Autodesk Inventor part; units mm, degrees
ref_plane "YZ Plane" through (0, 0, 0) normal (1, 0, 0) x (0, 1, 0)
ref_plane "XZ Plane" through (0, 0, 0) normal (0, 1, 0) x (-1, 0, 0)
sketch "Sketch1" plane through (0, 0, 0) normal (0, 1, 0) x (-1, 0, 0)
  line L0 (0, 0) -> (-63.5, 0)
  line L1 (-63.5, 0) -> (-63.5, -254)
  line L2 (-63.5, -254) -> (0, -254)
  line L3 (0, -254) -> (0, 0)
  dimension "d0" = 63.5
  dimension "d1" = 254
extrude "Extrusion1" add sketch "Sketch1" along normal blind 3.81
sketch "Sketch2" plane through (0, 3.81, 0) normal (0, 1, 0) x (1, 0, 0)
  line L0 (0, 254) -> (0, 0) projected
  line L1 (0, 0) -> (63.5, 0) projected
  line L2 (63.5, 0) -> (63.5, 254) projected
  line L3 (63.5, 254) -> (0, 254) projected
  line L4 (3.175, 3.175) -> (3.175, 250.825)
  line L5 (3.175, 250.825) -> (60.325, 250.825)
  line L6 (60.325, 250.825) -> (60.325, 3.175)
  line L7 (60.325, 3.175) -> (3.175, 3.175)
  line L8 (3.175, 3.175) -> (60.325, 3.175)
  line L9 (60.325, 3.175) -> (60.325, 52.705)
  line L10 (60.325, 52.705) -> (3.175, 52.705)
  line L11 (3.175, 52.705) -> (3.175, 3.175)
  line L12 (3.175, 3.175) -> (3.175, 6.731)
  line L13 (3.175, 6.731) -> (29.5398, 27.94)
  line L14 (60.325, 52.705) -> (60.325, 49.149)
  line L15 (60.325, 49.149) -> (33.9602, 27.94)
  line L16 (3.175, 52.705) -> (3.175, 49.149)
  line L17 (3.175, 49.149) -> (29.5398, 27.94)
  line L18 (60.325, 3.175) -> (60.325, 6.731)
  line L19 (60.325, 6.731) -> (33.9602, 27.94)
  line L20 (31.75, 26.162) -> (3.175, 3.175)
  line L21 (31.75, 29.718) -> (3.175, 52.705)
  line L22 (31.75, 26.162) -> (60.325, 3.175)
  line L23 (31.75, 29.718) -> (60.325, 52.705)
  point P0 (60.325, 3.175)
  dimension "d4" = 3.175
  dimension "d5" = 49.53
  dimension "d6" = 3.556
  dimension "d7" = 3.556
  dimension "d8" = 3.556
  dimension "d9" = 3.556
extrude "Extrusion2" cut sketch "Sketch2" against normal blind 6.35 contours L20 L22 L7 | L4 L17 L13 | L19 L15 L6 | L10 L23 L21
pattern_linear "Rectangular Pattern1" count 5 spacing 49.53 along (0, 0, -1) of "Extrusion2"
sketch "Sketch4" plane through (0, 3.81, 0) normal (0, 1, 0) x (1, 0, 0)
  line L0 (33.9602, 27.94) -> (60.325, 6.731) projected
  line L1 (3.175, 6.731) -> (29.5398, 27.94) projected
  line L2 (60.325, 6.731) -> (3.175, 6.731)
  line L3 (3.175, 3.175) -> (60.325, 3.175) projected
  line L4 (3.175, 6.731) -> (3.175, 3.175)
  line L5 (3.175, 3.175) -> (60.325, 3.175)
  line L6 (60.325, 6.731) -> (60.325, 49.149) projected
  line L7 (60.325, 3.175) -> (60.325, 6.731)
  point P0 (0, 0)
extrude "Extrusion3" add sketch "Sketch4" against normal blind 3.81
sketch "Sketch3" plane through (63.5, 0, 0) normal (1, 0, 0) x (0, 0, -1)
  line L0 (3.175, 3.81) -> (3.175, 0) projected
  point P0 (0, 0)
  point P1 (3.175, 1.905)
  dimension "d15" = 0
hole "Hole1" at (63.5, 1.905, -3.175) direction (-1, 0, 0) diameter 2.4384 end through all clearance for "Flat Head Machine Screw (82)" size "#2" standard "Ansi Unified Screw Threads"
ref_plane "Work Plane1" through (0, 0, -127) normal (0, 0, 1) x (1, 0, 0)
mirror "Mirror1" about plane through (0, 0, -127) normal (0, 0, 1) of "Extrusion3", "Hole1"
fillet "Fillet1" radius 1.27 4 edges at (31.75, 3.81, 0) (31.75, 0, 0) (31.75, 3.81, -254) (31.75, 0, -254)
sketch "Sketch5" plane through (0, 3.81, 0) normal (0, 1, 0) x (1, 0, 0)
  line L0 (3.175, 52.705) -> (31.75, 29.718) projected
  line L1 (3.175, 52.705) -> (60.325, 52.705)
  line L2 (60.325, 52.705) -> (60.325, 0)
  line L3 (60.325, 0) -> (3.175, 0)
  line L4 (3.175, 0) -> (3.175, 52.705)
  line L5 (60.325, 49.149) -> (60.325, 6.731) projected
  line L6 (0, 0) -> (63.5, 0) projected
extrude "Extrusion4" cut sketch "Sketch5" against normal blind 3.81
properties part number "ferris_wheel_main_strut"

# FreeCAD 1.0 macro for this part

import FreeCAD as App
import Part
import Sketcher
from FreeCAD import Vector
Q = App.Units.Quantity


def edges_at(feature, points):
    """Names of the edges that pass closest to the given points."""
    edges = feature.Shape.Edges
    near = lambda p: min(range(len(edges)), key=lambda i: edges[i].distToShape(Part.Vertex(*p))[0])
    return sorted({f"Edge{near(p) + 1}" for p in points})

doc = App.newDocument("Part")
params = doc.addObject("Spreadsheet::Sheet", "Params")
for row, (alias, value) in enumerate([
    ("sketch1_height", "10 in"),
    ("sketch1_width", "2.5 in"),
    ("pad1_length", "0.15 in"),
    ("sketch2_width", "2.25 in"),
    ("sketch2_height", "1.67 in"),
    ("pocket1_length", "0.25 in"),
    ("linearpattern_pitch", "1.95 in"),
    ("sketch3_width", "2.25 in"),
    ("sketch3_height", "0.14 in"),
    ("pad2_length", "0.15 in"),
    ("sketch4_diameter", "0.096 in"),
    ("hole_diameter", "0.096 in"),
    ("fillet_radius", "0.05 in"),
    ("sketch5_width", "2.25 in"),
    ("sketch5_height", "2.075 in"),
    ("pocket2_length", "0.15 in"),
], start=1):
    params.set(f"A{row}", alias)
    params.set(f"B{row}", "=" + value)
    params.setAlias(f"B{row}", alias)

body = doc.addObject("PartDesign::Body", "Body")

# Sketch on XZ plane
sketch1 = body.newObject("Sketcher::SketchObject", "Sketch")
sketch1.AttachmentSupport = (doc.getObject("XZ_Plane"), [""])
sketch1.MapMode = "FlatFace"
sketch1.addGeometry(Part.LineSegment(Vector(0, -254, 0), Vector(0, 0, 0)), False)
sketch1.addGeometry(Part.LineSegment(Vector(0, 0, 0), Vector(64, 0, 0)), False)
sketch1.addGeometry(Part.LineSegment(Vector(64, 0, 0), Vector(64, -254, 0)), False)
sketch1.addGeometry(Part.LineSegment(Vector(64, -254, 0), Vector(0, -254, 0)), False)
sketch1.addConstraint(Sketcher.Constraint("Coincident", 0, 2, 1, 1))
sketch1.addConstraint(Sketcher.Constraint("Coincident", 1, 2, 2, 1))
sketch1.addConstraint(Sketcher.Constraint("Coincident", 2, 2, 3, 1))
sketch1.addConstraint(Sketcher.Constraint("Coincident", 3, 2, 0, 1))
sketch1.addConstraint(Sketcher.Constraint("Vertical", 0))
sketch1.addConstraint(Sketcher.Constraint("Horizontal", 1))
sketch1.addConstraint(Sketcher.Constraint("Vertical", 2))
sketch1.addConstraint(Sketcher.Constraint("Horizontal", 3))
sketch1.addConstraint(Sketcher.Constraint("Coincident", 0, 2, -1, 1))
sketch1.addConstraint(Sketcher.Constraint("DistanceY", 0, 1, 0, 2, Q("10 in")))
sketch1.addConstraint(Sketcher.Constraint("DistanceX", 1, 1, 1, 2, Q("2.5 in")))
sketch1.setExpression("Constraints[9]", "Params.sketch1_height")
sketch1.setExpression("Constraints[10]", "Params.sketch1_width")
pad1 = body.newObject("PartDesign::Pad", "Pad")
pad1.Profile = sketch1
pad1.setExpression("Length", "Params.pad1_length")
pad1.Reversed = True

# Sketch on XZ plane
sketch2 = body.newObject("Sketcher::SketchObject", "Sketch001")
sketch2.AttachmentSupport = (doc.getObject("XZ_Plane"), [""])
sketch2.MapMode = "FlatFace"
sketch2.AttachmentOffset = App.Placement(Vector(0, 0, -0.15 * 25.4), App.Rotation())
sketch2.addGeometry(Part.LineSegment(Vector(32, -26, 0), Vector(3, -3, 0)), False)
sketch2.addGeometry(Part.LineSegment(Vector(3, -3, 0), Vector(60, -3, 0)), False)
sketch2.addGeometry(Part.LineSegment(Vector(60, -3, 0), Vector(32, -26, 0)), False)
sketch2.addGeometry(Part.LineSegment(Vector(3, -49, 0), Vector(3, -7, 0)), False)
sketch2.addGeometry(Part.LineSegment(Vector(3, -7, 0), Vector(30, -28, 0)), False)
sketch2.addGeometry(Part.LineSegment(Vector(30, -28, 0), Vector(3, -49, 0)), False)
sketch2.addGeometry(Part.LineSegment(Vector(34, -28, 0), Vector(60, -7, 0)), False)
sketch2.addGeometry(Part.LineSegment(Vector(60, -7, 0), Vector(60, -49, 0)), False)
sketch2.addGeometry(Part.LineSegment(Vector(60, -49, 0), Vector(34, -28, 0)), False)
sketch2.addGeometry(Part.LineSegment(Vector(60, -53, 0), Vector(3, -53, 0)), False)
sketch2.addGeometry(Part.LineSegment(Vector(3, -53, 0), Vector(32, -30, 0)), False)
sketch2.addGeometry(Part.LineSegment(Vector(32, -30, 0), Vector(60, -53, 0)), False)
sketch2.addConstraint(Sketcher.Constraint("Coincident", 0, 2, 1, 1))
sketch2.addConstraint(Sketcher.Constraint("Coincident", 1, 2, 2, 1))
sketch2.addConstraint(Sketcher.Constraint("Coincident", 2, 2, 0, 1))
sketch2.addConstraint(Sketcher.Constraint("Coincident", 3, 2, 4, 1))
sketch2.addConstraint(Sketcher.Constraint("Coincident", 4, 2, 5, 1))
sketch2.addConstraint(Sketcher.Constraint("Coincident", 5, 2, 3, 1))
sketch2.addConstraint(Sketcher.Constraint("Coincident", 6, 2, 7, 1))
sketch2.addConstraint(Sketcher.Constraint("Coincident", 7, 2, 8, 1))
sketch2.addConstraint(Sketcher.Constraint("Coincident", 8, 2, 6, 1))
sketch2.addConstraint(Sketcher.Constraint("Coincident", 9, 2, 10, 1))
sketch2.addConstraint(Sketcher.Constraint("Coincident", 10, 2, 11, 1))
sketch2.addConstraint(Sketcher.Constraint("Coincident", 11, 2, 9, 1))
sketch2.addConstraint(Sketcher.Constraint("Horizontal", 1))
sketch2.addConstraint(Sketcher.Constraint("Vertical", 3))
sketch2.addConstraint(Sketcher.Constraint("Vertical", 7))
sketch2.addConstraint(Sketcher.Constraint("Horizontal", 9))
sketch2.addConstraint(Sketcher.Constraint("Parallel", 0, 4))
sketch2.addConstraint(Sketcher.Constraint("Parallel", 2, 5))
sketch2.addConstraint(Sketcher.Constraint("Parallel", 5, 6))
sketch2.addConstraint(Sketcher.Constraint("Parallel", 4, 8))
sketch2.addConstraint(Sketcher.Constraint("Parallel", 6, 10))
sketch2.addConstraint(Sketcher.Constraint("Parallel", 8, 11))
sketch2.addConstraint(Sketcher.Constraint("Horizontal", 3, 2, 6, 2))
sketch2.addConstraint(Sketcher.Constraint("Horizontal", 5, 2, 7, 2))
sketch2.addConstraint(Sketcher.Constraint("Horizontal", 4, 2, 8, 2))
sketch2.addConstraint(Sketcher.Constraint("Vertical", 0, 2, 3, 2))
sketch2.addConstraint(Sketcher.Constraint("Vertical", 1, 2, 6, 2))
sketch2.addConstraint(Sketcher.Constraint("Vertical", 5, 2, 9, 2))
sketch2.addConstraint(Sketcher.Constraint("Vertical", 2, 2, 10, 2))
sketch2.addConstraint(Sketcher.Constraint("DistanceY", 3, 2, 0, 2, Q("0.14 in")))
sketch2.addConstraint(Sketcher.Constraint("DistanceY", 9, 2, 5, 2, Q("0.14 in")))
sketch2.addConstraint(Sketcher.Constraint("DistanceY", 10, 2, 2, 2, Q("0.14 in")))
sketch2.addConstraint(Sketcher.Constraint("DistanceX", -1, 1, 0, 2, Q("0.125 in")))
sketch2.addConstraint(Sketcher.Constraint("DistanceY", 0, 2, -1, 1, Q("0.125 in")))
sketch2.addConstraint(Sketcher.Constraint("DistanceX", 1, 1, 1, 2, Q("2.25 in")))
sketch2.addConstraint(Sketcher.Constraint("DistanceY", 3, 1, 3, 2, Q("1.67 in")))
sketch2.setExpression("Constraints[34]", "Params.sketch2_width")
sketch2.setExpression("Constraints[35]", "Params.sketch2_height")
pocket1 = body.newObject("PartDesign::Pocket", "Pocket")
pocket1.Profile = sketch2
pocket1.setExpression("Length", "Params.pocket1_length")
pocket1.Reversed = True
doc.recompute()

linearpattern = body.newObject("PartDesign::LinearPattern", "LinearPattern")
linearpattern.Originals = [pocket1]
linearpattern.Direction = (doc.getObject("Z_Axis"), [""])
linearpattern.Mode = "offset"
linearpattern.setExpression("Offset", "Params.linearpattern_pitch")
linearpattern.Occurrences = 5
linearpattern.Reversed = True
body.Tip = linearpattern

# Sketch on XZ plane
sketch3 = body.newObject("Sketcher::SketchObject", "Sketch002")
sketch3.AttachmentSupport = (doc.getObject("XZ_Plane"), [""])
sketch3.MapMode = "FlatFace"
sketch3.AttachmentOffset = App.Placement(Vector(0, 0, -0.15 * 25.4), App.Rotation())
sketch3.addGeometry(Part.LineSegment(Vector(60.3, -3.2, 0), Vector(60.3, -6.7, 0)), False)
sketch3.addGeometry(Part.LineSegment(Vector(60.3, -6.7, 0), Vector(3.2, -6.7, 0)), False)
sketch3.addGeometry(Part.LineSegment(Vector(3.2, -6.7, 0), Vector(3.2, -3.2, 0)), False)
sketch3.addGeometry(Part.LineSegment(Vector(3.2, -3.2, 0), Vector(60.3, -3.2, 0)), False)
sketch3.addConstraint(Sketcher.Constraint("Coincident", 0, 2, 1, 1))
sketch3.addConstraint(Sketcher.Constraint("Coincident", 1, 2, 2, 1))
sketch3.addConstraint(Sketcher.Constraint("Coincident", 2, 2, 3, 1))
sketch3.addConstraint(Sketcher.Constraint("Coincident", 3, 2, 0, 1))
sketch3.addConstraint(Sketcher.Constraint("Vertical", 0))
sketch3.addConstraint(Sketcher.Constraint("Horizontal", 1))
sketch3.addConstraint(Sketcher.Constraint("Vertical", 2))
sketch3.addConstraint(Sketcher.Constraint("Horizontal", 3))
sketch3.addConstraint(Sketcher.Constraint("DistanceX", 1, 2, 1, 1, Q("2.25 in")))
sketch3.addConstraint(Sketcher.Constraint("DistanceY", 0, 2, 0, 1, Q("0.14 in")))
sketch3.addConstraint(Sketcher.Constraint("DistanceX", -1, 1, 0, 2, Q("2.375 in")))
sketch3.addConstraint(Sketcher.Constraint("DistanceY", 0, 2, -1, 1, Q("0.265 in")))
sketch3.setExpression("Constraints[8]", "Params.sketch3_width")
sketch3.setExpression("Constraints[9]", "Params.sketch3_height")
pad2 = body.newObject("PartDesign::Pad", "Pad001")
pad2.Profile = sketch3
pad2.setExpression("Length", "Params.pad2_length")

# Sketch on YZ plane
sketch4 = body.newObject("Sketcher::SketchObject", "Sketch003")
sketch4.AttachmentSupport = (doc.getObject("YZ_Plane"), [""])
sketch4.MapMode = "FlatFace"
sketch4.AttachmentOffset = App.Placement(Vector(0, 0, 2.5 * 25.4), App.Rotation())
sketch4.addGeometry(Part.Circle(Vector(1.9, -3.2, 0), Vector(0, 0, 1), 1.2), False)
sketch4.addConstraint(Sketcher.Constraint("Diameter", 0, Q("0.096 in")))
sketch4.addConstraint(Sketcher.Constraint("DistanceX", -1, 1, 0, 3, Q("0.075 in")))
sketch4.addConstraint(Sketcher.Constraint("DistanceY", 0, 3, -1, 1, Q("0.125 in")))
sketch4.setExpression("Constraints[0]", "Params.sketch4_diameter")
doc.recompute()
hole = body.newObject("PartDesign::Hole", "Hole")
hole.Profile = sketch4
hole.ThreadType = "None"
hole.setExpression("Diameter", "Params.hole_diameter")
hole.DepthType = "ThroughAll"
doc.recompute()

datumplane = body.newObject("PartDesign::Plane", "DatumPlane")
datumplane.AttachmentSupport = (doc.getObject("XY_Plane"), [""])
datumplane.MapMode = "FlatFace"
datumplane.AttachmentOffset = App.Placement(Vector(0, 0, -5 * 25.4), App.Rotation())
mirrored = body.newObject("PartDesign::Mirrored", "Mirrored")
mirrored.Originals = [pad2, hole]
mirrored.MirrorPlane = (datumplane, [""])
body.Tip = mirrored
doc.recompute()

fillet = body.newObject("PartDesign::Fillet", "Fillet")
fillet.Base = (mirrored, edges_at(mirrored, [
    (31.75, 3.81, 0),
    (31.75, 0, 0),
    (31.75, 3.81, -254),
    (31.75, 0, -254),
]))
fillet.setExpression("Radius", "Params.fillet_radius")

# Sketch on XZ plane
sketch5 = body.newObject("Sketcher::SketchObject", "Sketch004")
sketch5.AttachmentSupport = (doc.getObject("XZ_Plane"), [""])
sketch5.MapMode = "FlatFace"
sketch5.AttachmentOffset = App.Placement(Vector(0, 0, -0.15 * 25.4), App.Rotation())
sketch5.addGeometry(Part.LineSegment(Vector(60, -53, 0), Vector(3, -53, 0)), False)
sketch5.addGeometry(Part.LineSegment(Vector(3, -53, 0), Vector(3, 0, 0)), False)
sketch5.addGeometry(Part.LineSegment(Vector(3, 0, 0), Vector(60, 0, 0)), False)
sketch5.addGeometry(Part.LineSegment(Vector(60, 0, 0), Vector(60, -53, 0)), False)
sketch5.addConstraint(Sketcher.Constraint("Coincident", 0, 2, 1, 1))
sketch5.addConstraint(Sketcher.Constraint("Coincident", 1, 2, 2, 1))
sketch5.addConstraint(Sketcher.Constraint("Coincident", 2, 2, 3, 1))
sketch5.addConstraint(Sketcher.Constraint("Coincident", 3, 2, 0, 1))
sketch5.addConstraint(Sketcher.Constraint("Horizontal", 0))
sketch5.addConstraint(Sketcher.Constraint("Vertical", 1))
sketch5.addConstraint(Sketcher.Constraint("Horizontal", 2))
sketch5.addConstraint(Sketcher.Constraint("Vertical", 3))
sketch5.addConstraint(Sketcher.Constraint("PointOnObject", 1, 2, -1))
sketch5.addConstraint(Sketcher.Constraint("DistanceX", 0, 2, 0, 1, Q("2.25 in")))
sketch5.addConstraint(Sketcher.Constraint("DistanceY", 1, 1, 1, 2, Q("2.075 in")))
sketch5.addConstraint(Sketcher.Constraint("DistanceX", -1, 1, 0, 2, Q("0.125 in")))
sketch5.setExpression("Constraints[9]", "Params.sketch5_width")
sketch5.setExpression("Constraints[10]", "Params.sketch5_height")
pocket2 = body.newObject("PartDesign::Pocket", "Pocket001")
pocket2.Profile = sketch5
pocket2.setExpression("Length", "Params.pocket2_length")
pocket2.Reversed = True

doc.recompute()
